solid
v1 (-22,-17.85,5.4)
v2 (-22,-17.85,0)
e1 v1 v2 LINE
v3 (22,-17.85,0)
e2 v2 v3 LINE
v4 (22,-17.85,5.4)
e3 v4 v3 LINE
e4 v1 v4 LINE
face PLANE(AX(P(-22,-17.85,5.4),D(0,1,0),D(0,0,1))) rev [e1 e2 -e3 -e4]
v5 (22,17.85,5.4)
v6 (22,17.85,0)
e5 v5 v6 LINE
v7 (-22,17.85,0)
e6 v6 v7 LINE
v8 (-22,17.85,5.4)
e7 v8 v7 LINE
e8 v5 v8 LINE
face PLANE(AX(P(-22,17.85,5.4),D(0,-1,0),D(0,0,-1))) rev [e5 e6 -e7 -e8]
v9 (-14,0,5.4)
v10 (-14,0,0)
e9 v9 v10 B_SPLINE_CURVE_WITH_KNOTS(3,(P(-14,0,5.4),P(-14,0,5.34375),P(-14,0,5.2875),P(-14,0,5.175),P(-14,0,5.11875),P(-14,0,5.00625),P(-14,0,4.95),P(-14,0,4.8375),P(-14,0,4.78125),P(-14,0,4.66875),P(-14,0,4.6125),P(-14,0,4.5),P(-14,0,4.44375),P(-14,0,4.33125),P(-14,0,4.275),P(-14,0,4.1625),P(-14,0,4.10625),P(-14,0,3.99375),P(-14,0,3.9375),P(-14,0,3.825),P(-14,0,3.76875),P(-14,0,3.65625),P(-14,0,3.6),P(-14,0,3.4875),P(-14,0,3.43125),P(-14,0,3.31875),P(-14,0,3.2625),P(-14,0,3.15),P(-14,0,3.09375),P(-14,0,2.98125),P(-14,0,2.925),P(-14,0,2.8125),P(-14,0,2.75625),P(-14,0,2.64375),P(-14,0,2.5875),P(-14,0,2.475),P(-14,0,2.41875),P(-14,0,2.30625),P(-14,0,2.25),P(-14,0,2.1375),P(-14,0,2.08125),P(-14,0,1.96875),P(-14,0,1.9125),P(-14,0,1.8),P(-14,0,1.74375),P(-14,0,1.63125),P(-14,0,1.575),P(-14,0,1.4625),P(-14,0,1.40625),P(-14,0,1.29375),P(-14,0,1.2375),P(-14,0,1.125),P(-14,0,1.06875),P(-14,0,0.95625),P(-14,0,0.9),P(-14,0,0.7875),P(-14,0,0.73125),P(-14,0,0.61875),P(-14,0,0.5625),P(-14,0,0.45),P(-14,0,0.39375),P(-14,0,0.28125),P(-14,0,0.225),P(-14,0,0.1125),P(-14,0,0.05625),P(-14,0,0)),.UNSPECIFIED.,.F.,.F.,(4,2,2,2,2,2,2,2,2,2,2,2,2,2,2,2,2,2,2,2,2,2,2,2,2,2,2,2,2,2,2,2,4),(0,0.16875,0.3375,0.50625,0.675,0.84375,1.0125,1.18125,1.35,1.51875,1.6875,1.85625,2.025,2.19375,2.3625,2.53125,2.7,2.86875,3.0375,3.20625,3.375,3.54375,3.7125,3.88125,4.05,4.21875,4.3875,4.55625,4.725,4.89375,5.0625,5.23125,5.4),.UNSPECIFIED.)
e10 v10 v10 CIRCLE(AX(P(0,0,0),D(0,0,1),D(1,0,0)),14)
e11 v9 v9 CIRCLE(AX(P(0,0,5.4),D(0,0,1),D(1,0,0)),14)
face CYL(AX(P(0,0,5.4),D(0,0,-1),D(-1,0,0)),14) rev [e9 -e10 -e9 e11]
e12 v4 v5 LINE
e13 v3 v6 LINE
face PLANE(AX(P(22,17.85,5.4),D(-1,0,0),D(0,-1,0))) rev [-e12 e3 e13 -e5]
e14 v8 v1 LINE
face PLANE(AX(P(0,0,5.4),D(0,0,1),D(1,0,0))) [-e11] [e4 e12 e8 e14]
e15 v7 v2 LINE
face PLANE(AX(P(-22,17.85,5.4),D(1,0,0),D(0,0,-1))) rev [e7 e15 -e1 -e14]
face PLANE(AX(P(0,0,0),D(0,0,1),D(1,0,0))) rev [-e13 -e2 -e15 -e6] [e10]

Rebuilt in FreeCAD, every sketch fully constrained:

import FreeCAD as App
import Part
import Sketcher

V = App.Vector


def add_polygon(sketch, points):
    """Adds a closed chain of lines whose ends are joined by coincident constraints."""
    first, n = sketch.GeometryCount, len(points)
    for a, b in zip(points, points[1:] + points[:1]):
        sketch.addGeometry(Part.LineSegment(App.Vector(*a, 0), App.Vector(*b, 0)), False)
    for i in range(n):
        sketch.addConstraint(Sketcher.Constraint("Coincident", first + i, 2, first + (i + 1) % n, 1))

doc = App.newDocument("Part")
body = doc.addObject("PartDesign::Body", "Body")

sketch1 = body.newObject("Sketcher::SketchObject", "Sketch")
sketch1.AttachmentSupport = (doc.getObject("XY_Plane"), [""])
sketch1.MapMode = "FlatFace"
add_polygon(sketch1, [(-22, 18), (-22, -18), (22, -18), (22, 18)])
sketch1.addGeometry(Part.Circle(V(0, 0, 0), V(0, 0, 1), 14), False)
sketch1.addConstraint([
    Sketcher.Constraint("Vertical", 0),
    Sketcher.Constraint("Horizontal", 1),
    Sketcher.Constraint("Vertical", 2),
    Sketcher.Constraint("Horizontal", 3),
    Sketcher.Constraint("Coincident", 4, 3, -1, 1),
    Sketcher.Constraint("Symmetric", 0, 2, 2, 2, -1, 1),
    Sketcher.Constraint("Diameter", 4, 28.0),
    Sketcher.Constraint("DistanceX", 1, 1, 1, 2, 44.0),
    Sketcher.Constraint("DistanceY", 0, 2, 0, 1, 35.7),
])
pad1 = body.newObject("PartDesign::Pad", "Pad")
pad1.Profile = sketch1
pad1.Length = 5.4

doc.recompute()
